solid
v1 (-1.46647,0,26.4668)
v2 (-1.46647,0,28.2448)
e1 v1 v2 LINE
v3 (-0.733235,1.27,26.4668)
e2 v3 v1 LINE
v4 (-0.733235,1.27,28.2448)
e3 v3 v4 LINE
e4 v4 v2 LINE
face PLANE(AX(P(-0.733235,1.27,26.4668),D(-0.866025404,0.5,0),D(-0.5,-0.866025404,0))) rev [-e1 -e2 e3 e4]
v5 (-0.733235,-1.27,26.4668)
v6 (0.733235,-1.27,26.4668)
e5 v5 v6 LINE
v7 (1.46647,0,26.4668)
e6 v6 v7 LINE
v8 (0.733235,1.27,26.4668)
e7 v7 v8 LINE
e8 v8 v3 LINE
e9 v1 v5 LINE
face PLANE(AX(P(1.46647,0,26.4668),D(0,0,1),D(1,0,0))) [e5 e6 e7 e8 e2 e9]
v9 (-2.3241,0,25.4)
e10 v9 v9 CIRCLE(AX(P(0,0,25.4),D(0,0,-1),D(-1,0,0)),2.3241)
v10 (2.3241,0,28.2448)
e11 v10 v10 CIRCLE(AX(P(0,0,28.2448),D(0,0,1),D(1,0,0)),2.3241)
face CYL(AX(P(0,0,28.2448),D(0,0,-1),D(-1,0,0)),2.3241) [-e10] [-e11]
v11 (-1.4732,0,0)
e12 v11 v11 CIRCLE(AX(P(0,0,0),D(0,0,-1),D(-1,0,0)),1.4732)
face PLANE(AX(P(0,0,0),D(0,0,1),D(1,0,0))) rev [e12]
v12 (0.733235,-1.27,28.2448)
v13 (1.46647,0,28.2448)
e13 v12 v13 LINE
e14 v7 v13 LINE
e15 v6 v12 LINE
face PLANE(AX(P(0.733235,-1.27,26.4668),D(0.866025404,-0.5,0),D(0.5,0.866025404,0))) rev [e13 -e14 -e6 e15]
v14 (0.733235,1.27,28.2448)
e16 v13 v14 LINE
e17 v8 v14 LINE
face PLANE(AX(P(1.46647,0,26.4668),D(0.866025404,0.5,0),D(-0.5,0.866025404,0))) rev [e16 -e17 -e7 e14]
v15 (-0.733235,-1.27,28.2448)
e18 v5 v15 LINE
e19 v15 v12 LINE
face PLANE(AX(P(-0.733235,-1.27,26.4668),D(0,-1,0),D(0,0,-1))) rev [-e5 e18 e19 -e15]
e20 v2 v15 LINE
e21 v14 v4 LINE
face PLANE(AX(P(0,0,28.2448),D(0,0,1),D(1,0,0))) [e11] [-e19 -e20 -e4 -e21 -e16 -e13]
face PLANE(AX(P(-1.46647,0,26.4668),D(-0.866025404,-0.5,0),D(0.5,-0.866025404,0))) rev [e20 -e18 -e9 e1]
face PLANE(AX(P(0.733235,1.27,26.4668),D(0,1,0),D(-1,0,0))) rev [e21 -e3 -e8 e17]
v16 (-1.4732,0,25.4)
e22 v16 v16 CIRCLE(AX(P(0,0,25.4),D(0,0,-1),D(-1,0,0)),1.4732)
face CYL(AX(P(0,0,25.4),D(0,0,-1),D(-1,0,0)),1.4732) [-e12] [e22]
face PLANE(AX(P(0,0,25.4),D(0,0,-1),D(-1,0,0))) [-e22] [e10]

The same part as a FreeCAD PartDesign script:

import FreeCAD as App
import Part
import Sketcher
Q = App.Units.Quantity

doc = App.newDocument("Part")
body = doc.addObject("PartDesign::Body", "Body")

# Sketch on XY plane
sketch1 = doc.addObject("Sketcher::SketchObject", "Sketch")
body.addObject(sketch1)
sketch1.AttachmentSupport = (doc.XY_Plane, [""])
sketch1.MapMode = "FlatFace"
sketch1.addGeometry(Part.Circle(App.Vector(0, 0, 0), App.Vector(0, 0, 1), 2.3), False)
sketch1.addConstraint([
    Sketcher.Constraint("Coincident", 0, 3, -1, 1),
    Sketcher.Constraint("Diameter", 0, Q("0.183 in")),
])
pad1 = doc.addObject("PartDesign::Pad", "Pad")
body.addObject(pad1)
pad1.Profile = sketch1
pad1.Length = Q("1.112 in")

# Sketch on XY plane
sketch2 = doc.addObject("Sketcher::SketchObject", "Sketch001")
body.addObject(sketch2)
sketch2.AttachmentSupport = (doc.XY_Plane, [""])
sketch2.MapMode = "FlatFace"
sketch2.addGeometry([
    Part.LineSegment(App.Vector(6.2, 6.2, 0), App.Vector(6.2, -6.2, 0)),  # 0
    Part.LineSegment(App.Vector(6.2, -6.2, 0), App.Vector(-6.2, -6.2, 0)),  # 1
    Part.LineSegment(App.Vector(-6.2, -6.2, 0), App.Vector(-6.2, 6.2, 0)),  # 2
    Part.LineSegment(App.Vector(-6.2, 6.2, 0), App.Vector(6.2, 6.2, 0)),  # 3
    Part.Circle(App.Vector(0, 0, 0), App.Vector(0, 0, 1), 1.5),  # 4
], False)
sketch2.addConstraint([
    Sketcher.Constraint("Coincident", 0, 2, 1, 1),
    Sketcher.Constraint("Coincident", 1, 2, 2, 1),
    Sketcher.Constraint("Coincident", 2, 2, 3, 1),
    Sketcher.Constraint("Coincident", 3, 2, 0, 1),
    Sketcher.Constraint("Vertical", 0),
    Sketcher.Constraint("Horizontal", 1),
    Sketcher.Constraint("Vertical", 2),
    Sketcher.Constraint("Horizontal", 3),
    Sketcher.Constraint("Coincident", 4, 3, -1, 1),
    Sketcher.Constraint("Symmetric", 0, 2, 2, 2, -1, 1),
    Sketcher.Constraint("Equal", 3, 0),
    Sketcher.Constraint("Diameter", 4, Q("0.116 in")),
    Sketcher.Constraint("DistanceX", 1, 2, 1, 1, 12.448),
])
pocket1 = doc.addObject("PartDesign::Pocket", "Pocket")
body.addObject(pocket1)
pocket1.Profile = sketch2
pocket1.Length = Q("1 in")
pocket1.Reversed = True

# Sketch on XY plane
sketch3 = doc.addObject("Sketcher::SketchObject", "Sketch002")
body.addObject(sketch3)
sketch3.AttachmentSupport = (doc.XY_Plane, [""])
sketch3.MapMode = "FlatFace"
sketch3.AttachmentOffset = App.Placement(App.Vector(0, 0, 1.112 * 25.4), App.Rotation())
sketch3.addGeometry([
    Part.LineSegment(App.Vector(1.5, 0, 0), App.Vector(0.7, 1.3, 0)),  # 0
    Part.LineSegment(App.Vector(0.7, 1.3, 0), App.Vector(-0.7, 1.3, 0)),  # 1
    Part.LineSegment(App.Vector(-0.7, 1.3, 0), App.Vector(-1.5, 0, 0)),  # 2
    Part.LineSegment(App.Vector(-1.5, 0, 0), App.Vector(-0.7, -1.3, 0)),  # 3
    Part.LineSegment(App.Vector(-0.7, -1.3, 0), App.Vector(0.7, -1.3, 0)),  # 4
    Part.LineSegment(App.Vector(0.7, -1.3, 0), App.Vector(1.5, 0, 0)),  # 5
], False)
sketch3.addConstraint([
    Sketcher.Constraint("Coincident", 0, 2, 1, 1),
    Sketcher.Constraint("Coincident", 1, 2, 2, 1),
    Sketcher.Constraint("Coincident", 2, 2, 3, 1),
    Sketcher.Constraint("Coincident", 3, 2, 4, 1),
    Sketcher.Constraint("Coincident", 4, 2, 5, 1),
    Sketcher.Constraint("Coincident", 5, 2, 0, 1),
    Sketcher.Constraint("Horizontal", 1),
    Sketcher.Constraint("Horizontal", 4),
    Sketcher.Constraint("Symmetric", 0, 2, 3, 2, -1, 1),
    Sketcher.Constraint("Symmetric", 2, 2, 5, 2, -1, 1),
    Sketcher.Constraint("PointOnObject", 2, 2, -1),
    Sketcher.Constraint("Parallel", 2, 5),
    Sketcher.Constraint("Vertical", 1, 2, 3, 2),
    Sketcher.Constraint("Angle", 0, Q("120 deg")),
    Sketcher.Constraint("DistanceY", 3, 2, 1, 2, Q("0.1 in")),
    Sketcher.Constraint("DistanceX", 1, 2, 1, 1, 1.46647),
])
pocket2 = doc.addObject("PartDesign::Pocket", "Pocket001")
body.addObject(pocket2)
pocket2.Profile = sketch3
pocket2.Length = Q("0.07 in")

doc.recompute()
